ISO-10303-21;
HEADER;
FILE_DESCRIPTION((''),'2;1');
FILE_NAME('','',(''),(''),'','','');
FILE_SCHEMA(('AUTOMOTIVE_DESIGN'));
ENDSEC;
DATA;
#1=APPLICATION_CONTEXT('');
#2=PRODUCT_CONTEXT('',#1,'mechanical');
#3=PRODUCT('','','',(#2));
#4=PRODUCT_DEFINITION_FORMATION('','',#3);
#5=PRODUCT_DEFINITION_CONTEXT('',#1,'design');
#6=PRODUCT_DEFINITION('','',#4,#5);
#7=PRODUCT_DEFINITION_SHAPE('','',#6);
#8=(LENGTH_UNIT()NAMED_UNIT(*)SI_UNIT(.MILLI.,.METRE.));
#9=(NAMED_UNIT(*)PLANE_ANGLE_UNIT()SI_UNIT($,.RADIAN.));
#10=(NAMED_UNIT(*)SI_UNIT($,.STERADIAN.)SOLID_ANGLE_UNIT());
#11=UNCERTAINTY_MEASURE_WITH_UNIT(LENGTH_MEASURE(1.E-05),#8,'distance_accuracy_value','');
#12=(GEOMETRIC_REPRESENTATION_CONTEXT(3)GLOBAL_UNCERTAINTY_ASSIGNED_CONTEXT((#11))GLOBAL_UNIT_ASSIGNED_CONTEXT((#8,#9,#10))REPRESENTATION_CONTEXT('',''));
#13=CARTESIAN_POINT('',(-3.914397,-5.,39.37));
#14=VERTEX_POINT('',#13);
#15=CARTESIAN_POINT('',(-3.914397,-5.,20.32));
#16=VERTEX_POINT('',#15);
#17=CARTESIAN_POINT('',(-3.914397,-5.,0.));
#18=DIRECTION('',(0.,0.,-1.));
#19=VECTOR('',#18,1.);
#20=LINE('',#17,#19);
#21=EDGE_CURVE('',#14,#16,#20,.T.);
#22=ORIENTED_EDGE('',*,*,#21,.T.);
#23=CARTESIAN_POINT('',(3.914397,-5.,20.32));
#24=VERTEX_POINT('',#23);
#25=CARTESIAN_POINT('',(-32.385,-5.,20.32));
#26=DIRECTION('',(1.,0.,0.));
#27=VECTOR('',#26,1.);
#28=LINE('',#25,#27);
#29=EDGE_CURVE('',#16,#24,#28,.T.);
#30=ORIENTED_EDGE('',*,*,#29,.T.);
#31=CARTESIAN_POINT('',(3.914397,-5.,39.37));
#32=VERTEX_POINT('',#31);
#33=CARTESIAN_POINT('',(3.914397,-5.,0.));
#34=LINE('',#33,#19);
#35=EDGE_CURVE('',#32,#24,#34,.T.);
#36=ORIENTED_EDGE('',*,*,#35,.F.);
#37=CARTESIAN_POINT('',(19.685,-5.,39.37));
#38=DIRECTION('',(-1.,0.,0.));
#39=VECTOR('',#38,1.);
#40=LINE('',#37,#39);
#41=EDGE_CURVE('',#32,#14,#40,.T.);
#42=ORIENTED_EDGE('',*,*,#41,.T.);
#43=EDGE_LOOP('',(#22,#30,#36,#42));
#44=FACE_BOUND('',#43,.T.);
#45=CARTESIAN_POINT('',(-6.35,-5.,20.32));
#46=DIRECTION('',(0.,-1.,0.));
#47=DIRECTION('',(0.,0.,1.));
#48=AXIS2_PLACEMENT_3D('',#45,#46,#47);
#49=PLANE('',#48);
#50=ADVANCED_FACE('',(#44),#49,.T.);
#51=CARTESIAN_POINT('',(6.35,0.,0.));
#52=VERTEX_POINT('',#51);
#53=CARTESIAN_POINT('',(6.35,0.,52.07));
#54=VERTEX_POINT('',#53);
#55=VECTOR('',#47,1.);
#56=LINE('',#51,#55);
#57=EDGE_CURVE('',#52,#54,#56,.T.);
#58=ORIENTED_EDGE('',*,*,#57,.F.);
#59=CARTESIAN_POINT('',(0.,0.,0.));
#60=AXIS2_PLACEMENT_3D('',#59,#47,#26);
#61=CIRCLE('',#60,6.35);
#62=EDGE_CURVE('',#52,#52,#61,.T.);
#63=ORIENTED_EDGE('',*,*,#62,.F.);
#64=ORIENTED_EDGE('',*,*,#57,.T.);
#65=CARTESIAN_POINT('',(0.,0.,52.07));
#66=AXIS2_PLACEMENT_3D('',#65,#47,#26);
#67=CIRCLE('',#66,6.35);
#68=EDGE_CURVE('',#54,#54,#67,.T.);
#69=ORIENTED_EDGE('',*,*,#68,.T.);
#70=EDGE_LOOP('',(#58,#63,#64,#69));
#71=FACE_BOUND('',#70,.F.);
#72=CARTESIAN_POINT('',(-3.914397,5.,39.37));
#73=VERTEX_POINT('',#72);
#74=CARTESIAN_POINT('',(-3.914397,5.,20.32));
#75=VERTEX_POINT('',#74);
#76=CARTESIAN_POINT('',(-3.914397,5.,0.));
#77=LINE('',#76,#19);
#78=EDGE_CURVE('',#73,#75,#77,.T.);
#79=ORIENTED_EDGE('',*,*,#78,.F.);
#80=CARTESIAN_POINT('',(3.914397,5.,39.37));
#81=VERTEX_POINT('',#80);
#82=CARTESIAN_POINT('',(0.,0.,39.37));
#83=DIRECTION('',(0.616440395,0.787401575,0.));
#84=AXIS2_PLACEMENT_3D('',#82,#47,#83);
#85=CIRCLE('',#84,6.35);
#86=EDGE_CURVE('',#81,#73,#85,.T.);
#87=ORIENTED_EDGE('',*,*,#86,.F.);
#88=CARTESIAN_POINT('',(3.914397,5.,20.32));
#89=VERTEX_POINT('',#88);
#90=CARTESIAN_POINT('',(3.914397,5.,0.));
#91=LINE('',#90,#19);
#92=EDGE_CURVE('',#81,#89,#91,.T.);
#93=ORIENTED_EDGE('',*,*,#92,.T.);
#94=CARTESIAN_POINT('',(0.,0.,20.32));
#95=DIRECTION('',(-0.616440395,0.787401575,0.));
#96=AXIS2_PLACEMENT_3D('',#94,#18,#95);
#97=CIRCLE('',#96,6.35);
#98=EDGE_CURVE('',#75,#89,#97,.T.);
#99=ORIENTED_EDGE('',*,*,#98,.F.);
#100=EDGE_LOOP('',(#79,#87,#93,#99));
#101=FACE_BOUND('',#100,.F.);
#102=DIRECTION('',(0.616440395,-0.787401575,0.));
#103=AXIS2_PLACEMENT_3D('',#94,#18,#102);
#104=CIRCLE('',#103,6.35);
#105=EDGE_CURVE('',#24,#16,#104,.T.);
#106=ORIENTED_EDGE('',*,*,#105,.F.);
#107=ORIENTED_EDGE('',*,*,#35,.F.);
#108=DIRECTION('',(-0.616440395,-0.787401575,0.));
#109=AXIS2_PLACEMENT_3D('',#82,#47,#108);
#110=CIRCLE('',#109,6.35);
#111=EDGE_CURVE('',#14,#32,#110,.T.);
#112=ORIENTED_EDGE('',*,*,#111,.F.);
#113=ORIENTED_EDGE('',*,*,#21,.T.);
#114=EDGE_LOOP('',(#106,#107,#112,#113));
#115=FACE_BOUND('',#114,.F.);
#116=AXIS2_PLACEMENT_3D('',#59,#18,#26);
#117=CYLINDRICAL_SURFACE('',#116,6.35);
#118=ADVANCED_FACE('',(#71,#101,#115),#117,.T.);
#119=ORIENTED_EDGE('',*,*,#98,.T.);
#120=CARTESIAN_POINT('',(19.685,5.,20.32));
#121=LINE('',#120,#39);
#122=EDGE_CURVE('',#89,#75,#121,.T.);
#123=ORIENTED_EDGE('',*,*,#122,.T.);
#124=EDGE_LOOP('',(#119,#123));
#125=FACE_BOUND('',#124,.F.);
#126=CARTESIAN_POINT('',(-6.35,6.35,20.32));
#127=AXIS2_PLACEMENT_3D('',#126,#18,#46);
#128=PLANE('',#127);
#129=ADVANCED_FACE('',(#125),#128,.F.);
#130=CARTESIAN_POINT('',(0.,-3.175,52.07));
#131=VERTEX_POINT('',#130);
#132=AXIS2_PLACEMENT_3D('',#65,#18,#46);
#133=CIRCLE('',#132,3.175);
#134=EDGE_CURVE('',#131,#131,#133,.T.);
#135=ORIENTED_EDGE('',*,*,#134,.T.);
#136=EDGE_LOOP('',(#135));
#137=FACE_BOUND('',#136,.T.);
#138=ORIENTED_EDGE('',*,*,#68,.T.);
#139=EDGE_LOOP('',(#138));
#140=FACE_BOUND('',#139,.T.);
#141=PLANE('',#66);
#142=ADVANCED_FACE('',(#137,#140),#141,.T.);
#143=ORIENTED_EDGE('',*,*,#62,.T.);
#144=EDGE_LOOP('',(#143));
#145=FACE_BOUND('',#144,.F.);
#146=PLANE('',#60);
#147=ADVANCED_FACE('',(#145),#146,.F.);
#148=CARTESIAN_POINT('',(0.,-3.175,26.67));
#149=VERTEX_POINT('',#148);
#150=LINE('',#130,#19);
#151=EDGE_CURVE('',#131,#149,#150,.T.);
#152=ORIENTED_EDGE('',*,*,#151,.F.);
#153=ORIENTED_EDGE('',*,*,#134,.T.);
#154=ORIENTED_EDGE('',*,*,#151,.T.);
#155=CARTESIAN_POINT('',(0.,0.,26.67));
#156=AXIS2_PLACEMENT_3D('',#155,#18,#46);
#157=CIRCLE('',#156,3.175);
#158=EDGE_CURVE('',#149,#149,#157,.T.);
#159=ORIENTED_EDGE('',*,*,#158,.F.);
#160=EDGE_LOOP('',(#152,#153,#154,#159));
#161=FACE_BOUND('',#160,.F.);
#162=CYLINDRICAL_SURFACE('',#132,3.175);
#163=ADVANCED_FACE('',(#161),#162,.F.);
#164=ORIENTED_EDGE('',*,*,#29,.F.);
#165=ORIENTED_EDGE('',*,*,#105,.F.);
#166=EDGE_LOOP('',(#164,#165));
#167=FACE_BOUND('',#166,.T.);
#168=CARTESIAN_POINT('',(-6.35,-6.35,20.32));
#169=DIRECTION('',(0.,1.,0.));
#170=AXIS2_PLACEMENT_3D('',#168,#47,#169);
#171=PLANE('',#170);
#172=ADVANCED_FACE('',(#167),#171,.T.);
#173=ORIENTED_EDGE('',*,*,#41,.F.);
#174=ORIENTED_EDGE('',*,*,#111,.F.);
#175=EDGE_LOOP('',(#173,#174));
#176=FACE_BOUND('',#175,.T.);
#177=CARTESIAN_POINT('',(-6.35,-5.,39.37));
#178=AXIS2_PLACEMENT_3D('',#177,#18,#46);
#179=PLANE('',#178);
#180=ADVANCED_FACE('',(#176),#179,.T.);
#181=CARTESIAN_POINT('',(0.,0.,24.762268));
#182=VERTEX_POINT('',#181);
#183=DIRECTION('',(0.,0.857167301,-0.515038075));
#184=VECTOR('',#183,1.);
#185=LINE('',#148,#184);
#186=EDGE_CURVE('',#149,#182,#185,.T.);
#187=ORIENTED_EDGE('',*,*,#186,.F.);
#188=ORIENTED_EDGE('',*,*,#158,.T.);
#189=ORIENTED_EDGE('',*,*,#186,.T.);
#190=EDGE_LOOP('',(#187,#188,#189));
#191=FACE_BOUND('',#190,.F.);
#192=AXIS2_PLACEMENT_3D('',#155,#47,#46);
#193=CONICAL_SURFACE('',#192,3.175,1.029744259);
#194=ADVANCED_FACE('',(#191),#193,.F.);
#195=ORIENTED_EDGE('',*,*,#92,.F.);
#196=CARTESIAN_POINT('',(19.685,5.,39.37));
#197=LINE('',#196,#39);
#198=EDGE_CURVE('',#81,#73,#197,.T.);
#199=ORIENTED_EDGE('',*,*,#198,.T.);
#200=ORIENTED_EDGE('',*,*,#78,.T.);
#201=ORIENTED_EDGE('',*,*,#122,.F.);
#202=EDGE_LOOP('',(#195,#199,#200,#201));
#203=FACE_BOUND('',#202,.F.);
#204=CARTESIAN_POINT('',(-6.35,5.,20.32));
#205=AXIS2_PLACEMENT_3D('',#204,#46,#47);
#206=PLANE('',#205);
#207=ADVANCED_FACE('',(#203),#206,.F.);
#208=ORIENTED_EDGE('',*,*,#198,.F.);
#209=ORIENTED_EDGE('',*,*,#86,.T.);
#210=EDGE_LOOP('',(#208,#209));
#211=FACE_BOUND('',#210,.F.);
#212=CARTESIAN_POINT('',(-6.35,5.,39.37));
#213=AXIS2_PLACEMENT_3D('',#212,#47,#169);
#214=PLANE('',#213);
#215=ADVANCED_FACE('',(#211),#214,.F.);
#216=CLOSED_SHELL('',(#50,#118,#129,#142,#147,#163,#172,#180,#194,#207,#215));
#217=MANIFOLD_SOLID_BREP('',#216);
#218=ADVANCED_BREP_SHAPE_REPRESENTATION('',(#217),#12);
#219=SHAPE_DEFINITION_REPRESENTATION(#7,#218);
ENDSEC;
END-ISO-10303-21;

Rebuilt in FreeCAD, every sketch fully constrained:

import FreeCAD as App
import Part
import Sketcher
from FreeCAD import Vector
Q = App.Units.Quantity

doc = App.newDocument("Part")
body = doc.addObject("PartDesign::Body", "Body")

sketch1 = body.newObject("Sketcher::SketchObject", "Sketch")
sketch1.AttachmentSupport = (doc.getObject("XY_Plane"), [""])
sketch1.MapMode = "FlatFace"
sketch1.addGeometry(Part.Circle(Vector(0, 0, 0), Vector(0, 0, 1), 6), False)
sketch1.addConstraint(Sketcher.Constraint("Coincident", 0, 3, -1, 1))
sketch1.addConstraint(Sketcher.Constraint("Diameter", 0, Q("0.5 in")))
pad1 = body.newObject("PartDesign::Pad", "Pad")
pad1.Profile = sketch1
pad1.Length = Q("2.05 in")

sketch2 = body.newObject("Sketcher::SketchObject", "Sketch001")
sketch2.AttachmentSupport = (doc.getObject("YZ_Plane"), [""])
sketch2.MapMode = "FlatFace"
sketch2.AttachmentOffset = App.Placement(Vector(0, 0, -0.25 * 25.4), App.Rotation())
sketch2.addGeometry(Part.LineSegment(Vector(-6.3, 39.4, 0), Vector(-6.3, 20.3, 0)), False)
sketch2.addGeometry(Part.LineSegment(Vector(-6.3, 20.3, 0), Vector(-5, 20.3, 0)), False)
sketch2.addGeometry(Part.LineSegment(Vector(-5, 20.3, 0), Vector(-5, 39.4, 0)), False)
sketch2.addGeometry(Part.LineSegment(Vector(-5, 39.4, 0), Vector(-6.3, 39.4, 0)), False)
sketch2.addGeometry(Part.LineSegment(Vector(5, 20.3, 0), Vector(6.3, 20.3, 0)), False)
sketch2.addGeometry(Part.LineSegment(Vector(6.3, 20.3, 0), Vector(6.3, 39.4, 0)), False)
sketch2.addGeometry(Part.LineSegment(Vector(6.3, 39.4, 0), Vector(5, 39.4, 0)), False)
sketch2.addGeometry(Part.LineSegment(Vector(5, 39.4, 0), Vector(5, 20.3, 0)), False)
sketch2.addConstraint(Sketcher.Constraint("Coincident", 0, 2, 1, 1))
sketch2.addConstraint(Sketcher.Constraint("Coincident", 1, 2, 2, 1))
sketch2.addConstraint(Sketcher.Constraint("Coincident", 2, 2, 3, 1))
sketch2.addConstraint(Sketcher.Constraint("Coincident", 3, 2, 0, 1))
sketch2.addConstraint(Sketcher.Constraint("Coincident", 4, 2, 5, 1))
sketch2.addConstraint(Sketcher.Constraint("Coincident", 5, 2, 6, 1))
sketch2.addConstraint(Sketcher.Constraint("Coincident", 6, 2, 7, 1))
sketch2.addConstraint(Sketcher.Constraint("Coincident", 7, 2, 4, 1))
sketch2.addConstraint(Sketcher.Constraint("Vertical", 0))
sketch2.addConstraint(Sketcher.Constraint("Horizontal", 1))
sketch2.addConstraint(Sketcher.Constraint("Vertical", 2))
sketch2.addConstraint(Sketcher.Constraint("Horizontal", 3))
sketch2.addConstraint(Sketcher.Constraint("Horizontal", 4))
sketch2.addConstraint(Sketcher.Constraint("Vertical", 5))
sketch2.addConstraint(Sketcher.Constraint("Horizontal", 6))
sketch2.addConstraint(Sketcher.Constraint("Vertical", 7))
sketch2.addConstraint(Sketcher.Constraint("Symmetric", 0, 2, 4, 2, -2))
sketch2.addConstraint(Sketcher.Constraint("Symmetric", 2, 2, 6, 2, -2))
sketch2.addConstraint(Sketcher.Constraint("DistanceY", 0, 2, 0, 1, Q("0.75 in")))
sketch2.addConstraint(Sketcher.Constraint("DistanceX", 0, 2, 4, 2, Q("0.5 in")))
sketch2.addConstraint(Sketcher.Constraint("DistanceY", -1, 1, 0, 2, Q("0.8 in")))
sketch2.addConstraint(Sketcher.Constraint("DistanceX", 2, 2, 6, 2, Q("0.3937 in")))
pocket1 = body.newObject("PartDesign::Pocket", "Pocket")
pocket1.Profile = sketch2
pocket1.Length = Q("2.05 in")
pocket1.Midplane = True

sketch3 = body.newObject("Sketcher::SketchObject", "Sketch002")
sketch3.AttachmentSupport = (doc.getObject("XY_Plane"), [""])
sketch3.MapMode = "FlatFace"
sketch3.AttachmentOffset = App.Placement(Vector(0, 0, 2.05 * 25.4), App.Rotation())
sketch3.addGeometry(Part.Circle(Vector(0, 0, 0), Vector(0, 0, 1), 3.2), False)
sketch3.addConstraint(Sketcher.Constraint("Coincident", 0, 3, -1, 1))
sketch3.addConstraint(Sketcher.Constraint("Diameter", 0, Q("0.25 in")))
doc.recompute()
hole = body.newObject("PartDesign::Hole", "Hole")
hole.Profile = sketch3
hole.ThreadType = "None"
hole.Diameter = Q("0.25 in")
hole.DepthType = "Dimension"
hole.Depth = Q("1 in")
hole.DrillPoint = "Angled"
hole.DrillPointAngle = 118

doc.recompute()
